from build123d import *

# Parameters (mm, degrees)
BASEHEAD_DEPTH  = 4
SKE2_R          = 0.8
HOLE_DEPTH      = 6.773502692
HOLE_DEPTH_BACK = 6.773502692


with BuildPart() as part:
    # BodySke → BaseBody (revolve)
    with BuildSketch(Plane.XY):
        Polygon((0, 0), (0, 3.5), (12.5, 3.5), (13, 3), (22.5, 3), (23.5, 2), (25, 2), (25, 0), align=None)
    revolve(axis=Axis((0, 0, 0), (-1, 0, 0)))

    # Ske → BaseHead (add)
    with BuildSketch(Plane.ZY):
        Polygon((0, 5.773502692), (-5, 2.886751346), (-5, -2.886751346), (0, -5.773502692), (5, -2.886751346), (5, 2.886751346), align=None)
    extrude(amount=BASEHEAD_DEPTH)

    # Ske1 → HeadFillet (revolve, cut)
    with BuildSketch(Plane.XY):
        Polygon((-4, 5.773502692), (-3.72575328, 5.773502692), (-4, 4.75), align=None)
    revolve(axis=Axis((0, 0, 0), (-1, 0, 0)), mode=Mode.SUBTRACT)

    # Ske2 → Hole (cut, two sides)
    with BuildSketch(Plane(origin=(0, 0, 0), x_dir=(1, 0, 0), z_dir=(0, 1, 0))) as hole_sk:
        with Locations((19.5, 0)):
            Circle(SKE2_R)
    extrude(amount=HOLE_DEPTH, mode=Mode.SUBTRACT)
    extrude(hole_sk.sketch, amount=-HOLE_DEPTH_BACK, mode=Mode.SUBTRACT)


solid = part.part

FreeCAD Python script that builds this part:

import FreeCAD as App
import Part
import Sketcher

V = App.Vector
Q = App.Units.Quantity


def add_polygon(sketch, points):
    """Adds a closed chain of lines whose ends are joined by coincident constraints."""
    first, n = sketch.GeometryCount, len(points)
    for a, b in zip(points, points[1:] + points[:1]):
        sketch.addGeometry(Part.LineSegment(App.Vector(*a, 0), App.Vector(*b, 0)), False)
    for i in range(n):
        sketch.addConstraint(Sketcher.Constraint("Coincident", first + i, 2, first + (i + 1) % n, 1))

doc = App.newDocument("Part")
body = doc.addObject("PartDesign::Body", "Body")

sketch1 = body.newObject("Sketcher::SketchObject", "Sketch")
sketch1.AttachmentSupport = (doc.getObject("XY_Plane"), [""])
sketch1.MapMode = "FlatFace"
add_polygon(sketch1, [(0, 3.5), (0, 0), (25, 0), (25, 2), (23.5, 2), (22.5, 3), (13, 3), (12.5, 3.5)])
sketch1.addConstraint([
    Sketcher.Constraint("Vertical", 0),
    Sketcher.Constraint("Horizontal", 1),
    Sketcher.Constraint("Vertical", 2),
    Sketcher.Constraint("Horizontal", 3),
    Sketcher.Constraint("Horizontal", 5),
    Sketcher.Constraint("Horizontal", 7),
    Sketcher.Constraint("Coincident", 0, 2, -1, 1),
    Sketcher.Constraint("Parallel", 4, 6),
    Sketcher.Constraint("DistanceX", 1, 1, 1, 2, Q("25 mm")),
    Sketcher.Constraint("DistanceY", 2, 1, 2, 2, Q("2 mm")),
    Sketcher.Constraint("Angle", 4, Q("135 deg")),
    Sketcher.Constraint("DistanceX", 3, 2, 3, 1, Q("1.5 mm")),
    Sketcher.Constraint("DistanceX", 5, 2, 5, 1, Q("9.5 mm")),
    Sketcher.Constraint("DistanceX", 7, 2, 7, 1, Q("12.5 mm")),
    Sketcher.Constraint("DistanceY", -1, 1, 4, 2, Q("3 mm")),
])
revolution = body.newObject("PartDesign::Revolution", "Revolution")
revolution.Profile = sketch1
revolution.ReferenceAxis = (sketch1, ["H_Axis"])
revolution.Angle = 360

sketch2 = body.newObject("Sketcher::SketchObject", "Sketch001")
sketch2.AttachmentSupport = (doc.getObject("YZ_Plane"), [""])
sketch2.MapMode = "FlatFace"
add_polygon(sketch2, [(5.773503, 0), (2.886751, -5), (-2.886751, -5), (-5.773503, 0), (-2.886751, 5), (2.886751, 5)])
sketch2.addConstraint([
    Sketcher.Constraint("Horizontal", 1),
    Sketcher.Constraint("Horizontal", 4),
    Sketcher.Constraint("Symmetric", 0, 2, 3, 2, -1, 1),
    Sketcher.Constraint("Symmetric", 2, 2, 5, 2, -1, 1),
    Sketcher.Constraint("PointOnObject", 2, 2, -1),
    Sketcher.Constraint("Parallel", 2, 5),
    Sketcher.Constraint("Vertical", 1, 2, 3, 2),
    Sketcher.Constraint("Angle", 0, Q("-120 deg")),
    Sketcher.Constraint("DistanceY", 0, 2, -1, 1, Q("5 mm")),
    Sketcher.Constraint("DistanceX", 1, 2, 1, 1, Q("5.773503 mm")),
])
pad1 = body.newObject("PartDesign::Pad", "Pad")
pad1.Profile = sketch2
pad1.Length = 4
pad1.Reversed = True

sketch3 = body.newObject("Sketcher::SketchObject", "Sketch002")
sketch3.AttachmentSupport = (doc.getObject("XY_Plane"), [""])
sketch3.MapMode = "FlatFace"
add_polygon(sketch3, [(-3.725753, 5.773503), (-4, 5.773503), (-4, 4.75)])
sketch3.addConstraint([
    Sketcher.Constraint("Horizontal", 0),
    Sketcher.Constraint("Vertical", 1),
    Sketcher.Constraint("Angle", 2, Q("75 deg")),
    Sketcher.Constraint("DistanceX", 0, 2, -1, 1, Q("4 mm")),
    Sketcher.Constraint("DistanceY", -1, 1, 1, 2, Q("4.75 mm")),
    Sketcher.Constraint("DistanceX", 0, 2, 0, 1, Q("0.274247 mm")),
])
groove = body.newObject("PartDesign::Groove", "Groove")
groove.Profile = sketch3
groove.ReferenceAxis = (sketch3, ["H_Axis"])
groove.Angle = 360

sketch4 = body.newObject("Sketcher::SketchObject", "Sketch003")
sketch4.AttachmentSupport = (doc.getObject("XZ_Plane"), [""])
sketch4.MapMode = "FlatFace"
sketch4.addGeometry(Part.Circle(V(19.5, 0, 0), V(0, 0, 1), 0.8), False)
sketch4.addConstraint([
    Sketcher.Constraint("PointOnObject", 0, 3, -1),
    Sketcher.Constraint("Diameter", 0, Q("1.6 mm")),
    Sketcher.Constraint("DistanceX", -1, 1, 0, 3, Q("19.5 mm")),
])
pocket1 = body.newObject("PartDesign::Pocket", "Pocket")
pocket1.Profile = sketch4
pocket1.Type = "ThroughAll"
pocket1.Midplane = True

doc.recompute()
